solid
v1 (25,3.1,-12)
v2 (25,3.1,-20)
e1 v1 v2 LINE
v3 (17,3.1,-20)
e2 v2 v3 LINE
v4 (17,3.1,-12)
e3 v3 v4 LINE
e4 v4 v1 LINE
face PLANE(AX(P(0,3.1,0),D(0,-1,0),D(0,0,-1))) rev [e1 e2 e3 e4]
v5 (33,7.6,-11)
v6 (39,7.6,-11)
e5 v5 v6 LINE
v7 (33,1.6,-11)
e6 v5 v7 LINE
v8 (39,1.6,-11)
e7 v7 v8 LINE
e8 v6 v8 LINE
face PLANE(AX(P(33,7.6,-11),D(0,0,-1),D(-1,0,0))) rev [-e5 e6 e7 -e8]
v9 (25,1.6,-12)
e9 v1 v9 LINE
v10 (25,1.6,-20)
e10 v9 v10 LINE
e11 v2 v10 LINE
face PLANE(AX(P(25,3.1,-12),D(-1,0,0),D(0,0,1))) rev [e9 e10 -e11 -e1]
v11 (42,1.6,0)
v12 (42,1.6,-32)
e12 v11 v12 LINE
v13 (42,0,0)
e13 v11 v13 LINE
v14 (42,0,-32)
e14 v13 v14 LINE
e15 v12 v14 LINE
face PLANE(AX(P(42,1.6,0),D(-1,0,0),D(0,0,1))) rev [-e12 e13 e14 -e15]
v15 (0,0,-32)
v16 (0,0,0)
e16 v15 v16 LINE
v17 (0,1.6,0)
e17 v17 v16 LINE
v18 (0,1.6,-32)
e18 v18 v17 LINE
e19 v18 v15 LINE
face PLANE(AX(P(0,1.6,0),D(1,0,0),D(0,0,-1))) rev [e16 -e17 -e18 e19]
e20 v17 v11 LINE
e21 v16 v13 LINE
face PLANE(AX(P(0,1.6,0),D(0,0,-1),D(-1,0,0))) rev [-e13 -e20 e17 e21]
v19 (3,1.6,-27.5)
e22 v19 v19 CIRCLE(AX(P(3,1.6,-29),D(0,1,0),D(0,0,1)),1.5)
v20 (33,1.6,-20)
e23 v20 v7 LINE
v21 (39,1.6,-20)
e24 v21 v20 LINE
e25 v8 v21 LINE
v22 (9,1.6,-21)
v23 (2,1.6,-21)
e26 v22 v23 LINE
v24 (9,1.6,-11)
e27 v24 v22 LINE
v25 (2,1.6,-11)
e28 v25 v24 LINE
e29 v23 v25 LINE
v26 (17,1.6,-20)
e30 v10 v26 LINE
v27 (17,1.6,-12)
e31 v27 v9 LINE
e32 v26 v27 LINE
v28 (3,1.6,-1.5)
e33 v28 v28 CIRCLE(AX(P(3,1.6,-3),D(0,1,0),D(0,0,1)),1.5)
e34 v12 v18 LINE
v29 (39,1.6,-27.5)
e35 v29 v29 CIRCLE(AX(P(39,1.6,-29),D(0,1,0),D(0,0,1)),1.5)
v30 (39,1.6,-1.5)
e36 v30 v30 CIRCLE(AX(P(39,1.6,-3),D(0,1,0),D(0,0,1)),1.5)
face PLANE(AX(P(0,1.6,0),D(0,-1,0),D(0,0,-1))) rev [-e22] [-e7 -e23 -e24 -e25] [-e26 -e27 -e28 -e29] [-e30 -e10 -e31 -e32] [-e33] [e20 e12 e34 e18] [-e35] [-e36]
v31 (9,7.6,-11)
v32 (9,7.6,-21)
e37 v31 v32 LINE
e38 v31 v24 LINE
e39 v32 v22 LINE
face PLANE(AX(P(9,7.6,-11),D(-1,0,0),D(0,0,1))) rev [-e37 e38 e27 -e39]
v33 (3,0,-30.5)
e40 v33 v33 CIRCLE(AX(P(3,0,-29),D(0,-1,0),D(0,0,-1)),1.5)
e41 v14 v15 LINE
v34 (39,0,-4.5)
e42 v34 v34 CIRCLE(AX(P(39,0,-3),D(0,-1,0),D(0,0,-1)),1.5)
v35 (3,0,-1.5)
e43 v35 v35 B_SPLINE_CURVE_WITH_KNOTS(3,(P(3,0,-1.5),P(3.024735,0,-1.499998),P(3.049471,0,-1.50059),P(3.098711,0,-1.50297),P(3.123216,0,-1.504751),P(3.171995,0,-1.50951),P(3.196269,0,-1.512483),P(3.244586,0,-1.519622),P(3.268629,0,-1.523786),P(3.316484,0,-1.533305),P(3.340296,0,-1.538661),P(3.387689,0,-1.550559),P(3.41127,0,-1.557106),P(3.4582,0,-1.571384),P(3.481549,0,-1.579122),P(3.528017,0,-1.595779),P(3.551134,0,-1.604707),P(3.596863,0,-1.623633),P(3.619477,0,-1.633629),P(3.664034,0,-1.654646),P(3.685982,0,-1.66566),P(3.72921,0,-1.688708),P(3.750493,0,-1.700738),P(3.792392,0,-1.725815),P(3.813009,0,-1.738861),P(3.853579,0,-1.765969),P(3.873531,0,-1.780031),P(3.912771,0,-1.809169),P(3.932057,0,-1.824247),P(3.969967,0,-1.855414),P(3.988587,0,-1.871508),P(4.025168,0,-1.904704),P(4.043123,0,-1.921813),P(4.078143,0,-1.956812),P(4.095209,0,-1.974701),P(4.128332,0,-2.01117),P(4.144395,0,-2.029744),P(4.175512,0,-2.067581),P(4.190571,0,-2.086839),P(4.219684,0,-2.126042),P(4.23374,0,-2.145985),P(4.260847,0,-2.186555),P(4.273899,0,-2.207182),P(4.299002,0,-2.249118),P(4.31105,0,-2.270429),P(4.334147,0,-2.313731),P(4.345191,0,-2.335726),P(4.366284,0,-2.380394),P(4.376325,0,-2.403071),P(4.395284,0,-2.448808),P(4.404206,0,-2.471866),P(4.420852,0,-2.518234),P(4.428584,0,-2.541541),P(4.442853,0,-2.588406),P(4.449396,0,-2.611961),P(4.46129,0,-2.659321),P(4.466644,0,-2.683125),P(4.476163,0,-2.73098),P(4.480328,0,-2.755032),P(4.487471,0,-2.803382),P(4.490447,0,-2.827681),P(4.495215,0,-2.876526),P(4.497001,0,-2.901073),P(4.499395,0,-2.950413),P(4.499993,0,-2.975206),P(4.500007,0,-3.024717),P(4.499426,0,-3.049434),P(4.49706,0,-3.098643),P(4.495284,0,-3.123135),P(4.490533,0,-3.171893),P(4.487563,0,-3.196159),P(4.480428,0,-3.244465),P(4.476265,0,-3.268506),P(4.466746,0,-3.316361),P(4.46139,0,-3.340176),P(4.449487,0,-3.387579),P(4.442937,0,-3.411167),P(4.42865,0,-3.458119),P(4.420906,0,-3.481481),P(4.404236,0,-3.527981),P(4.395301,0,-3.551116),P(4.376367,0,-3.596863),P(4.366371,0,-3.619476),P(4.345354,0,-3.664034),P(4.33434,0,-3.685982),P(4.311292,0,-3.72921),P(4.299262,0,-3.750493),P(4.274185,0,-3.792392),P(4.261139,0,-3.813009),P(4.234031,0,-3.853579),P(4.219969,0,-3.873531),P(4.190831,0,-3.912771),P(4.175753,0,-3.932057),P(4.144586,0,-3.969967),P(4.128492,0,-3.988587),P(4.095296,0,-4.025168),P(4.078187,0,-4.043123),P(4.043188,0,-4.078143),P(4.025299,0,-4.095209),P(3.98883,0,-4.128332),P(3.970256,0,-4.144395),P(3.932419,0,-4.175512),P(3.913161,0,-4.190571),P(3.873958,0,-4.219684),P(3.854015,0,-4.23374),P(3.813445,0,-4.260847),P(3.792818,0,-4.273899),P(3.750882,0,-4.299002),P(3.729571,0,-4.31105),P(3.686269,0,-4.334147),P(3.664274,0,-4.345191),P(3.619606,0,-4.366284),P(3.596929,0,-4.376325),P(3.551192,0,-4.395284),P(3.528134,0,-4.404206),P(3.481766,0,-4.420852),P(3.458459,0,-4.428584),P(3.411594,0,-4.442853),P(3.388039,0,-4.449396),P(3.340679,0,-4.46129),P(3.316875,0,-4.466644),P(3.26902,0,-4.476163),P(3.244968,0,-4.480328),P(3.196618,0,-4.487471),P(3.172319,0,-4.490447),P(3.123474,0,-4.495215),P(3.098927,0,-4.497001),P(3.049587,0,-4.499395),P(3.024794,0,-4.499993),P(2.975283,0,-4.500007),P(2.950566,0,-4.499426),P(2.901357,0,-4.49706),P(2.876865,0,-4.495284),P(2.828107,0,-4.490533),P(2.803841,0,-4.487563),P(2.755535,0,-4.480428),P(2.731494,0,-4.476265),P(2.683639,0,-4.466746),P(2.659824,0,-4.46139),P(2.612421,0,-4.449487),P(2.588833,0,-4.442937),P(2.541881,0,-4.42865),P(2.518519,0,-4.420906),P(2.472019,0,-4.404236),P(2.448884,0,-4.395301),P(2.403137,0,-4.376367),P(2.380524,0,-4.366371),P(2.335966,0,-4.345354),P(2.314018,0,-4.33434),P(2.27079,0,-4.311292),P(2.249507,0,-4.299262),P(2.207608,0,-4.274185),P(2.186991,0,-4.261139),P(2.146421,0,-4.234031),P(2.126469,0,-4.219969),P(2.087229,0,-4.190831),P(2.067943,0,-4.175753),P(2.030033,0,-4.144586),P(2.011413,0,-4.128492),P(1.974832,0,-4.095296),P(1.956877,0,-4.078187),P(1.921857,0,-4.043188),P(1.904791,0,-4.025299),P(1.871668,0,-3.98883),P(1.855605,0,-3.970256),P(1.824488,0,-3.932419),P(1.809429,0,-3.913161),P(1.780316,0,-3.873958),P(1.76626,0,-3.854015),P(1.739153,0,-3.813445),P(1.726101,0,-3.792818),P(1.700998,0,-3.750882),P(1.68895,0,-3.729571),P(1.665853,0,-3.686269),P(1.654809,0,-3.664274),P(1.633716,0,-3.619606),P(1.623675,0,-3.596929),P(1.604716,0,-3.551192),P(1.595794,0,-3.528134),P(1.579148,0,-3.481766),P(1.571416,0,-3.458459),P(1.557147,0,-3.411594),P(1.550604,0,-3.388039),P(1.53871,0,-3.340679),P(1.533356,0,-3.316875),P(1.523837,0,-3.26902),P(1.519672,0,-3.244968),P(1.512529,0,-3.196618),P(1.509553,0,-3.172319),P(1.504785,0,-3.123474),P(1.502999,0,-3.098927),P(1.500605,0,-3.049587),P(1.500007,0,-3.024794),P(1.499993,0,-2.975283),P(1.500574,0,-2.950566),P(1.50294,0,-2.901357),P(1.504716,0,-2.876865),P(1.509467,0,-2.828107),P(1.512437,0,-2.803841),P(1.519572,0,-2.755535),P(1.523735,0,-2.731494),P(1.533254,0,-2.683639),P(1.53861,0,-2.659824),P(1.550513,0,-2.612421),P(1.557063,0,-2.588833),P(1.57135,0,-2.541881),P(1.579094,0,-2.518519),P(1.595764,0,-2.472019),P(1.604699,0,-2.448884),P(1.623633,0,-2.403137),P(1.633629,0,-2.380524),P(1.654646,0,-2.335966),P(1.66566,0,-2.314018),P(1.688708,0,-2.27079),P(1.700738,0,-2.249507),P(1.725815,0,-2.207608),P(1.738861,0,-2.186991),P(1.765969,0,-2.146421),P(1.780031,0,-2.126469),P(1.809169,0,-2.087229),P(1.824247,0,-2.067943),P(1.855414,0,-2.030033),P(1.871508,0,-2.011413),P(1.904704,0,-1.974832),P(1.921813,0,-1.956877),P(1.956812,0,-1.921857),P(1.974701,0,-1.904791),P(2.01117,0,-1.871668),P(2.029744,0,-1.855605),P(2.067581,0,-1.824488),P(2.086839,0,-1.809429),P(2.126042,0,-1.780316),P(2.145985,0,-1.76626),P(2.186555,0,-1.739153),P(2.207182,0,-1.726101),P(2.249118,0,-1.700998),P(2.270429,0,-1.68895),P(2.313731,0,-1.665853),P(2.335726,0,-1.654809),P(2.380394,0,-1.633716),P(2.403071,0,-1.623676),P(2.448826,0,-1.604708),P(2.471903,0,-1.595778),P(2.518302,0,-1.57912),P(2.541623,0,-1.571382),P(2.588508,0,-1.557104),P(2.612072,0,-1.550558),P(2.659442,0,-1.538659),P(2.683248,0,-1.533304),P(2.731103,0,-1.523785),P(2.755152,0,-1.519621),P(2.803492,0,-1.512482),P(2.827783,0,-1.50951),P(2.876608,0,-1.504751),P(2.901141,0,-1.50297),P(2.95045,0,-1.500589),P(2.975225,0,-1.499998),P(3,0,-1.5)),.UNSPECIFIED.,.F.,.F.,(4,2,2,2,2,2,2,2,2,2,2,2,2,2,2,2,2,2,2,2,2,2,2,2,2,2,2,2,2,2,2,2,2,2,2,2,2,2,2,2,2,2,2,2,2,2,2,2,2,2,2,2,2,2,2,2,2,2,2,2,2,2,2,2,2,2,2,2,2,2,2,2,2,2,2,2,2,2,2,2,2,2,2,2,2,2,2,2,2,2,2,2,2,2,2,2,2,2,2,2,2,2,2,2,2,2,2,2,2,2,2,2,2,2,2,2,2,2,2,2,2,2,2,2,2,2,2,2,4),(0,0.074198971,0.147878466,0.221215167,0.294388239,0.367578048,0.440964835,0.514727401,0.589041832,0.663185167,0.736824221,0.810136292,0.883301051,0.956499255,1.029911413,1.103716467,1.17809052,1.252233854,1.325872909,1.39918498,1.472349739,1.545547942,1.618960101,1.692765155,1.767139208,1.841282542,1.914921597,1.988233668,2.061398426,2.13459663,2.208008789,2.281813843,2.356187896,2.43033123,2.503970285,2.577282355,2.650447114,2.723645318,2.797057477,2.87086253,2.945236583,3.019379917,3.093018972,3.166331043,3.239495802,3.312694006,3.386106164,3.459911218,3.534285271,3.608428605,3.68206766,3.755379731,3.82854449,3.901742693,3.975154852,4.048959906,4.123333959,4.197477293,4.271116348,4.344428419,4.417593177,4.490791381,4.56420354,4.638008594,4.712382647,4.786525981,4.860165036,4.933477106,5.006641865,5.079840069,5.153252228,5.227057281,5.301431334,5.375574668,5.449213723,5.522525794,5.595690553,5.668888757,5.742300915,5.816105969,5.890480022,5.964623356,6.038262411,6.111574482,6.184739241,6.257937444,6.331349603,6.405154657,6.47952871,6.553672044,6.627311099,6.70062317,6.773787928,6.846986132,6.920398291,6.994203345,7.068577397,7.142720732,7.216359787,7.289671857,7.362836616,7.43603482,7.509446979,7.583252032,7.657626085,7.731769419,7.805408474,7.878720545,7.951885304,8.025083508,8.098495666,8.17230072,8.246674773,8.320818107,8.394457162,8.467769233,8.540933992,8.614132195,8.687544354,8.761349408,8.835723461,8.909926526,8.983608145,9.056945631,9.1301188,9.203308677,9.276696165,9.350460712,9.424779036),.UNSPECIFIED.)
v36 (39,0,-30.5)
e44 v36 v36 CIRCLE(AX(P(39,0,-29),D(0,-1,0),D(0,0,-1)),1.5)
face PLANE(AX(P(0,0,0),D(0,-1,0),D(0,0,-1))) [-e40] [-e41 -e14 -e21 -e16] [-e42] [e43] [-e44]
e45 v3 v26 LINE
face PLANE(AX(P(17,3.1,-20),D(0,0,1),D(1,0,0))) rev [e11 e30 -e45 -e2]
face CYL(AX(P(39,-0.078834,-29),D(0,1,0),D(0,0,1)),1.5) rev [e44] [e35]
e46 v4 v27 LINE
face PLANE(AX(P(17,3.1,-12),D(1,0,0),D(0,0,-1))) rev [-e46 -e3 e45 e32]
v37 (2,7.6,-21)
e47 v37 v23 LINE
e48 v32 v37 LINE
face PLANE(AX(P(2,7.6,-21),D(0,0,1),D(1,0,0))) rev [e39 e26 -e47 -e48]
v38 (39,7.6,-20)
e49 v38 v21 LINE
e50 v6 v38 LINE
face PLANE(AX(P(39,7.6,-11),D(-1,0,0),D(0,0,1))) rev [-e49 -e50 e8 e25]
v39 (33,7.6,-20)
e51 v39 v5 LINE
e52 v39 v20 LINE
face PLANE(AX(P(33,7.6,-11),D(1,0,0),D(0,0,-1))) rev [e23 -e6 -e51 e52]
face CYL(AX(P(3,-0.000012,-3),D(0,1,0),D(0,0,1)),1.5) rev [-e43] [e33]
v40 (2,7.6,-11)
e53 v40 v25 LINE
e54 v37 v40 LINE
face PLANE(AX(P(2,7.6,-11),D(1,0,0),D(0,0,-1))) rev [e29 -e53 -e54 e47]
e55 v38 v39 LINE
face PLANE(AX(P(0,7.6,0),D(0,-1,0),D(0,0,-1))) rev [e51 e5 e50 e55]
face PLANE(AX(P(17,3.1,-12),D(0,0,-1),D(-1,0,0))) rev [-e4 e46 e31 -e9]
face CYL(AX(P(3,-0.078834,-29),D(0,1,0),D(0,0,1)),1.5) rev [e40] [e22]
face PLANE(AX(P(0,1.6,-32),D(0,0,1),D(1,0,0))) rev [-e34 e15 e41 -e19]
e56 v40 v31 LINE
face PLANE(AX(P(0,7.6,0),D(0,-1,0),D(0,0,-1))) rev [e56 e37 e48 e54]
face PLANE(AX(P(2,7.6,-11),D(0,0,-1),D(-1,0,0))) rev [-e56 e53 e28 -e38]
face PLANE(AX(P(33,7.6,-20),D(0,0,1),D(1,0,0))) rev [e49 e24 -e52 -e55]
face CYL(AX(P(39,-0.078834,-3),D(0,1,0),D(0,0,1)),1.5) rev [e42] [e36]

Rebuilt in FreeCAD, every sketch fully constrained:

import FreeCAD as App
import Part
import Sketcher

V = App.Vector

doc = App.newDocument("Part")
params = doc.addObject("Spreadsheet::Sheet", "Params")
for row, (alias, value) in enumerate([
    ("sketch1_width", "42 mm"),
    ("sketch1_height", "32 mm"),
    ("pad1_length", "1.6 mm"),
    ("sketch2_diameter", "3 mm"),
    ("sketch3_diameter", "3 mm"),
    ("sketch4_diameter", "3 mm"),
    ("sketch5_diameter", "3 mm"),
    ("sketch6_width", "7 mm"),
    ("sketch6_height", "10 mm"),
    ("pad2_length", "6 mm"),
    ("sketch7_width", "6 mm"),
    ("sketch7_height", "9 mm"),
    ("pad3_length", "6 mm"),
    ("sketch8_width", "8 mm"),
    ("pad4_length", "1.5 mm"),
], start=1):
    params.set(f"A{row}", alias)
    params.set(f"B{row}", "=" + value)
    params.setAlias(f"B{row}", alias)

body = doc.addObject("PartDesign::Body", "Body")

# Sketch on XZ plane
sketch1 = doc.addObject("Sketcher::SketchObject", "Sketch")
body.addObject(sketch1)
sketch1.AttachmentSupport = (doc.XZ_Plane, [""])
sketch1.MapMode = "FlatFace"
sketch1.addGeometry([
    Part.LineSegment(V(0, -32, 0), V(0, 0, 0)),
    Part.LineSegment(V(0, 0, 0), V(42, 0, 0)),
    Part.LineSegment(V(42, 0, 0), V(42, -32, 0)),
    Part.LineSegment(V(42, -32, 0), V(0, -32, 0)),
], False)
sketch1.addConstraint([
    Sketcher.Constraint("Coincident", 0, 2, 1, 1),
    Sketcher.Constraint("Coincident", 1, 2, 2, 1),
    Sketcher.Constraint("Coincident", 2, 2, 3, 1),
    Sketcher.Constraint("Coincident", 3, 2, 0, 1),
    Sketcher.Constraint("Vertical", 0),
    Sketcher.Constraint("Horizontal", 1),
    Sketcher.Constraint("Vertical", 2),
    Sketcher.Constraint("Horizontal", 3),
    Sketcher.Constraint("Coincident", 0, 2, -1, 1),
    Sketcher.Constraint("DistanceX", 1, 1, 1, 2, 42.0),
    Sketcher.Constraint("DistanceY", 0, 1, 0, 2, 32.0),
])
sketch1.setExpression("Constraints[9]", "Params.sketch1_width")
sketch1.setExpression("Constraints[10]", "Params.sketch1_height")
pad1 = doc.addObject("PartDesign::Pad", "Pad")
body.addObject(pad1)
pad1.Profile = sketch1
pad1.setExpression("Length", "Params.pad1_length")
pad1.Reversed = True

# Sketch on XZ plane
sketch2 = doc.addObject("Sketcher::SketchObject", "Sketch001")
body.addObject(sketch2)
sketch2.AttachmentSupport = (doc.XZ_Plane, [""])
sketch2.MapMode = "FlatFace"
sketch2.addGeometry(Part.Circle(V(3, -3, 0), V(0, 0, 1), 1.5), False)
sketch2.addConstraint([
    Sketcher.Constraint("Diameter", 0, 3.0),
    Sketcher.Constraint("DistanceX", -1, 1, 0, 3, 3.0),
    Sketcher.Constraint("DistanceY", 0, 3, -1, 1, 3.0),
])
sketch2.setExpression("Constraints[0]", "Params.sketch2_diameter")
pocket1 = doc.addObject("PartDesign::Pocket", "Pocket")
body.addObject(pocket1)
pocket1.Profile = sketch2
pocket1.Type = "ThroughAll"
pocket1.Midplane = True

# Sketch on XZ plane
sketch3 = doc.addObject("Sketcher::SketchObject", "Sketch002")
body.addObject(sketch3)
sketch3.AttachmentSupport = (doc.XZ_Plane, [""])
sketch3.MapMode = "FlatFace"
sketch3.addGeometry(Part.Circle(V(39, -3, 0), V(0, 0, 1), 1.5), False)
sketch3.addConstraint([
    Sketcher.Constraint("Diameter", 0, 3.0),
    Sketcher.Constraint("DistanceX", -1, 1, 0, 3, 39.0),
    Sketcher.Constraint("DistanceY", 0, 3, -1, 1, 3.0),
])
sketch3.setExpression("Constraints[0]", "Params.sketch3_diameter")
pocket2 = doc.addObject("PartDesign::Pocket", "Pocket001")
body.addObject(pocket2)
pocket2.Profile = sketch3
pocket2.Type = "ThroughAll"
pocket2.Midplane = True

# Sketch on XZ plane
sketch4 = doc.addObject("Sketcher::SketchObject", "Sketch003")
body.addObject(sketch4)
sketch4.AttachmentSupport = (doc.XZ_Plane, [""])
sketch4.MapMode = "FlatFace"
sketch4.addGeometry(Part.Circle(V(3, -29, 0), V(0, 0, 1), 1.5), False)
sketch4.addConstraint([
    Sketcher.Constraint("Diameter", 0, 3.0),
    Sketcher.Constraint("DistanceX", -1, 1, 0, 3, 3.0),
    Sketcher.Constraint("DistanceY", 0, 3, -1, 1, 29.0),
])
sketch4.setExpression("Constraints[0]", "Params.sketch4_diameter")
pocket3 = doc.addObject("PartDesign::Pocket", "Pocket002")
body.addObject(pocket3)
pocket3.Profile = sketch4
pocket3.Type = "ThroughAll"
pocket3.Midplane = True

# Sketch on XZ plane
sketch5 = doc.addObject("Sketcher::SketchObject", "Sketch004")
body.addObject(sketch5)
sketch5.AttachmentSupport = (doc.XZ_Plane, [""])
sketch5.MapMode = "FlatFace"
sketch5.addGeometry(Part.Circle(V(39, -29, 0), V(0, 0, 1), 1.5), False)
sketch5.addConstraint([
    Sketcher.Constraint("Diameter", 0, 3.0),
    Sketcher.Constraint("DistanceX", -1, 1, 0, 3, 39.0),
    Sketcher.Constraint("DistanceY", 0, 3, -1, 1, 29.0),
])
sketch5.setExpression("Constraints[0]", "Params.sketch5_diameter")
pocket4 = doc.addObject("PartDesign::Pocket", "Pocket003")
body.addObject(pocket4)
pocket4.Profile = sketch5
pocket4.Type = "ThroughAll"
pocket4.Midplane = True

# Sketch on XZ plane
sketch6 = doc.addObject("Sketcher::SketchObject", "Sketch005")
body.addObject(sketch6)
sketch6.AttachmentSupport = (doc.XZ_Plane, [""])
sketch6.MapMode = "FlatFace"
sketch6.AttachmentOffset = App.Placement(V(0, 0, -1.6), App.Rotation())
sketch6.addGeometry([
    Part.LineSegment(V(2, -21, 0), V(2, -11, 0)),
    Part.LineSegment(V(2, -11, 0), V(9, -11, 0)),
    Part.LineSegment(V(9, -11, 0), V(9, -21, 0)),
    Part.LineSegment(V(9, -21, 0), V(2, -21, 0)),
], False)
sketch6.addConstraint([
    Sketcher.Constraint("Coincident", 0, 2, 1, 1),
    Sketcher.Constraint("Coincident", 1, 2, 2, 1),
    Sketcher.Constraint("Coincident", 2, 2, 3, 1),
    Sketcher.Constraint("Coincident", 3, 2, 0, 1),
    Sketcher.Constraint("Vertical", 0),
    Sketcher.Constraint("Horizontal", 1),
    Sketcher.Constraint("Vertical", 2),
    Sketcher.Constraint("Horizontal", 3),
    Sketcher.Constraint("DistanceX", 1, 1, 1, 2, 7.0),
    Sketcher.Constraint("DistanceY", 0, 1, 0, 2, 10.0),
    Sketcher.Constraint("DistanceX", -1, 1, 0, 2, 2.0),
    Sketcher.Constraint("DistanceY", 0, 2, -1, 1, 11.0),
])
sketch6.setExpression("Constraints[8]", "Params.sketch6_width")
sketch6.setExpression("Constraints[9]", "Params.sketch6_height")
pad2 = doc.addObject("PartDesign::Pad", "Pad001")
body.addObject(pad2)
pad2.Profile = sketch6
pad2.setExpression("Length", "Params.pad2_length")
pad2.Reversed = True

# Sketch on XZ plane
sketch7 = doc.addObject("Sketcher::SketchObject", "Sketch006")
body.addObject(sketch7)
sketch7.AttachmentSupport = (doc.XZ_Plane, [""])
sketch7.MapMode = "FlatFace"
sketch7.AttachmentOffset = App.Placement(V(0, 0, -1.6), App.Rotation())
sketch7.addGeometry([
    Part.LineSegment(V(33, -20, 0), V(33, -11, 0)),
    Part.LineSegment(V(33, -11, 0), V(39, -11, 0)),
    Part.LineSegment(V(39, -11, 0), V(39, -20, 0)),
    Part.LineSegment(V(39, -20, 0), V(33, -20, 0)),
], False)
sketch7.addConstraint([
    Sketcher.Constraint("Coincident", 0, 2, 1, 1),
    Sketcher.Constraint("Coincident", 1, 2, 2, 1),
    Sketcher.Constraint("Coincident", 2, 2, 3, 1),
    Sketcher.Constraint("Coincident", 3, 2, 0, 1),
    Sketcher.Constraint("Vertical", 0),
    Sketcher.Constraint("Horizontal", 1),
    Sketcher.Constraint("Vertical", 2),
    Sketcher.Constraint("Horizontal", 3),
    Sketcher.Constraint("DistanceX", 1, 1, 1, 2, 6.0),
    Sketcher.Constraint("DistanceY", 0, 1, 0, 2, 9.0),
    Sketcher.Constraint("DistanceX", -1, 1, 0, 2, 33.0),
    Sketcher.Constraint("DistanceY", 0, 2, -1, 1, 11.0),
])
sketch7.setExpression("Constraints[8]", "Params.sketch7_width")
sketch7.setExpression("Constraints[9]", "Params.sketch7_height")
pad3 = doc.addObject("PartDesign::Pad", "Pad002")
body.addObject(pad3)
pad3.Profile = sketch7
pad3.setExpression("Length", "Params.pad3_length")
pad3.Reversed = True

# Sketch on XZ plane
sketch8 = doc.addObject("Sketcher::SketchObject", "Sketch007")
body.addObject(sketch8)
sketch8.AttachmentSupport = (doc.XZ_Plane, [""])
sketch8.MapMode = "FlatFace"
sketch8.AttachmentOffset = App.Placement(V(0, 0, -1.6), App.Rotation())
sketch8.addGeometry([
    Part.LineSegment(V(17, -20, 0), V(17, -12, 0)),
    Part.LineSegment(V(17, -12, 0), V(25, -12, 0)),
    Part.LineSegment(V(25, -12, 0), V(25, -20, 0)),
    Part.LineSegment(V(25, -20, 0), V(17, -20, 0)),
], False)
sketch8.addConstraint([
    Sketcher.Constraint("Coincident", 0, 2, 1, 1),
    Sketcher.Constraint("Coincident", 1, 2, 2, 1),
    Sketcher.Constraint("Coincident", 2, 2, 3, 1),
    Sketcher.Constraint("Coincident", 3, 2, 0, 1),
    Sketcher.Constraint("Vertical", 0),
    Sketcher.Constraint("Horizontal", 1),
    Sketcher.Constraint("Vertical", 2),
    Sketcher.Constraint("Horizontal", 3),
    Sketcher.Constraint("Equal", 3, 0),
    Sketcher.Constraint("DistanceX", 1, 1, 1, 2, 8.0),
    Sketcher.Constraint("DistanceX", -1, 1, 0, 2, 17.0),
    Sketcher.Constraint("DistanceY", 0, 2, -1, 1, 12.0),
])
sketch8.setExpression("Constraints[9]", "Params.sketch8_width")
pad4 = doc.addObject("PartDesign::Pad", "Pad003")
body.addObject(pad4)
pad4.Profile = sketch8
pad4.setExpression("Length", "Params.pad4_length")
pad4.Reversed = True

doc.recompute()
